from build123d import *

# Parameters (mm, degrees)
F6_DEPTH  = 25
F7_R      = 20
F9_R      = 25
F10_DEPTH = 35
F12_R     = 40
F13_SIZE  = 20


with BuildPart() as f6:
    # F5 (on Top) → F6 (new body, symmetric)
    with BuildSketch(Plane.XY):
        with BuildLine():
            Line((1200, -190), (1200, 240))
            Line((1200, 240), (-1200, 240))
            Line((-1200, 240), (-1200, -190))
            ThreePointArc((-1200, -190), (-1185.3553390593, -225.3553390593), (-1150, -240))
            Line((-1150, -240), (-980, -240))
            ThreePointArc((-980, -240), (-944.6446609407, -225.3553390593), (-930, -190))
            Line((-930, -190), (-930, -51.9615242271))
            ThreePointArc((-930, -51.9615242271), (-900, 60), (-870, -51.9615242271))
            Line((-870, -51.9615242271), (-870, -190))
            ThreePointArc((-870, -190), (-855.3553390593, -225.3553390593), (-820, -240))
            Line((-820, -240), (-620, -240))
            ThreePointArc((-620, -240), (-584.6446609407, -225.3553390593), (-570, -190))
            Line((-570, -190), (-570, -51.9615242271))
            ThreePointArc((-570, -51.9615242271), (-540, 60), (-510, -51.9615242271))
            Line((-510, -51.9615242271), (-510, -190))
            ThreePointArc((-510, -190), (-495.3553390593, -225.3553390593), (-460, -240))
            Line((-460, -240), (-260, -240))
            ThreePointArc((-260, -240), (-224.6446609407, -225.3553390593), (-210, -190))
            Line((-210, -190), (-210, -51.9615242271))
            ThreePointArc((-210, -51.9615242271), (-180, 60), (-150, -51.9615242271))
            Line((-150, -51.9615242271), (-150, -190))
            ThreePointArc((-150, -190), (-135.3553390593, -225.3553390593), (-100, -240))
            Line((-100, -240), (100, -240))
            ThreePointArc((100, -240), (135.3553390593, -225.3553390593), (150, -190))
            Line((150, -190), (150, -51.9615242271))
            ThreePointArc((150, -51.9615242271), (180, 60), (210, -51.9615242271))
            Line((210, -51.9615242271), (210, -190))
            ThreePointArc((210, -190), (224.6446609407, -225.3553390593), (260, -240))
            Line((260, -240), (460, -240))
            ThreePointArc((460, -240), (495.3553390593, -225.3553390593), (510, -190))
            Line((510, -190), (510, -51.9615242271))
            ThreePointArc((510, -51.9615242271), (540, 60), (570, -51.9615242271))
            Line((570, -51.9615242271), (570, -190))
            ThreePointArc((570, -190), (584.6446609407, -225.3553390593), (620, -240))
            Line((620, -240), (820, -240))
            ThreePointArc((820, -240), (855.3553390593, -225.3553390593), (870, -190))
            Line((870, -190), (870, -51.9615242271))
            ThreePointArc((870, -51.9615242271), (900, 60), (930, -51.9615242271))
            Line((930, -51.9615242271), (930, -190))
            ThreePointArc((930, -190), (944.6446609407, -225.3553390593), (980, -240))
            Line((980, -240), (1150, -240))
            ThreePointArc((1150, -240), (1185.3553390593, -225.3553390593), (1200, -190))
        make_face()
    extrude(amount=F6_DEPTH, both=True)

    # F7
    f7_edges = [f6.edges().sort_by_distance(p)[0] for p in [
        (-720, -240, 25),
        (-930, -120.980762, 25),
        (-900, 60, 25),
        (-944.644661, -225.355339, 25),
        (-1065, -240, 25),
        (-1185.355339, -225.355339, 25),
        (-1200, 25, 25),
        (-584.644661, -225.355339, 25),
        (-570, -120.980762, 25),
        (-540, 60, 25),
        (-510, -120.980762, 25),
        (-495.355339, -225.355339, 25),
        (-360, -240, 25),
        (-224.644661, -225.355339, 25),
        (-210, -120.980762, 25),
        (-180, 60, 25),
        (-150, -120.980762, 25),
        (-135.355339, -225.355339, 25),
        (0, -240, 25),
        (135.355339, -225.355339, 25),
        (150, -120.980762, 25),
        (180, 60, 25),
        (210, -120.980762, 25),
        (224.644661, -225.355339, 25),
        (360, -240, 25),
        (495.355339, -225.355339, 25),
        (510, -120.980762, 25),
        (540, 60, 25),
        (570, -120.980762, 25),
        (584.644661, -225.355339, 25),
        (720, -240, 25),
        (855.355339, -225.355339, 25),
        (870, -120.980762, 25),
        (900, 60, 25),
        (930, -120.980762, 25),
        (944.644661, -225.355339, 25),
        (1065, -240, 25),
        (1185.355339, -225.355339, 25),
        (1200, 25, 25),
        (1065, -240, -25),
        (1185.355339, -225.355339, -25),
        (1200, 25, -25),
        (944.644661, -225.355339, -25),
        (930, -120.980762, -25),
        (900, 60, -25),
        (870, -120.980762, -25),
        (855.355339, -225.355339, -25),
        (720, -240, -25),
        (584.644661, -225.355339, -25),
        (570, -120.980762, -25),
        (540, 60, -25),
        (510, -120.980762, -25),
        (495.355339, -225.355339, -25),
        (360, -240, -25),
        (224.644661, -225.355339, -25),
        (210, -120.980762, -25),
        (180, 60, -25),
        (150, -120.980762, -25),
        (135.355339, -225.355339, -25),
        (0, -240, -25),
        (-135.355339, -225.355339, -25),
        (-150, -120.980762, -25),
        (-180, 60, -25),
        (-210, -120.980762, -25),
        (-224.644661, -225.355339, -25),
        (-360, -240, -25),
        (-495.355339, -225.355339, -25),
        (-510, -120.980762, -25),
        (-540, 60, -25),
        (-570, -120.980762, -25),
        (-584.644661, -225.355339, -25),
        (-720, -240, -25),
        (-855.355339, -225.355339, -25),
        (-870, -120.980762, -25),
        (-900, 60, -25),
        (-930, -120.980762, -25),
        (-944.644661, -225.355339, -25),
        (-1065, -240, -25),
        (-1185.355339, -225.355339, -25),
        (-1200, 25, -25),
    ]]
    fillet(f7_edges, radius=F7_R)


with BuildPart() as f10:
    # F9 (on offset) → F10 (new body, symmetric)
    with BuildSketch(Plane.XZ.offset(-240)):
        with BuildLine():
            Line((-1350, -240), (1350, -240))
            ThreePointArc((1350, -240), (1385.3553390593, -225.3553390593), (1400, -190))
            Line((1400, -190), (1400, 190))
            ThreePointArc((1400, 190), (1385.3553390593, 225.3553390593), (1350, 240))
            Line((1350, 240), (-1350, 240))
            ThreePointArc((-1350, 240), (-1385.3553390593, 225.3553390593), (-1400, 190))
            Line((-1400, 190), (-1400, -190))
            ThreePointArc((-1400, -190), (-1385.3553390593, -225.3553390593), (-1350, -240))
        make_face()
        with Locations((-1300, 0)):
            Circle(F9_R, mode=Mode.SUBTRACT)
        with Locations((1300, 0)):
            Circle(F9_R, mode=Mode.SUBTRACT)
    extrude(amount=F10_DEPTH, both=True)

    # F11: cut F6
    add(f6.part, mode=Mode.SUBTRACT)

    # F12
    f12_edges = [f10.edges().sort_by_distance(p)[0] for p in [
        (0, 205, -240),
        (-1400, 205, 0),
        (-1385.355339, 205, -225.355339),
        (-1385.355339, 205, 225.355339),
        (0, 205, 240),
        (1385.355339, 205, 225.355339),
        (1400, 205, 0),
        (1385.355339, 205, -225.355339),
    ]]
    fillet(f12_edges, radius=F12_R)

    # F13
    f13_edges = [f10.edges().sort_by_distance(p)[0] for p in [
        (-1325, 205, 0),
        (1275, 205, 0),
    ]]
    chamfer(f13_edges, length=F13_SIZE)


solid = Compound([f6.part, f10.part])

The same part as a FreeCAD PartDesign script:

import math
import FreeCAD as App
import Part
import Sketcher

V = App.Vector


def edges_at(feature, points):
    """Names of the edges that pass closest to the given points."""
    edges = feature.Shape.Edges
    near = lambda p: min(range(len(edges)), key=lambda i: edges[i].distToShape(Part.Vertex(*p))[0])
    return sorted({f"Edge{near(p) + 1}" for p in points})

doc = App.newDocument("Part")
body = doc.addObject("PartDesign::Body", "Body")

# Sketch on XY plane
sketch1 = body.newObject("Sketcher::SketchObject", "Sketch")
sketch1.AttachmentSupport = (doc.getObject("XY_Plane"), [""])
sketch1.MapMode = "FlatFace"
sketch1.addGeometry([
    Part.LineSegment(V(1200, -190, 0), V(1200, 240, 0)),  # 0
    Part.LineSegment(V(1200, 240, 0), V(-1200, 240, 0)),  # 1
    Part.LineSegment(V(-1200, 240, 0), V(-1200, -190, 0)),  # 2
    Part.ArcOfCircle(Part.Circle(V(-1150, -190, 0), V(0, 0, 1), 50), math.radians(180), math.radians(270)),  # 3
    Part.LineSegment(V(-1150, -240, 0), V(-980, -240, 0)),  # 4
    Part.ArcOfCircle(Part.Circle(V(-980, -190, 0), V(0, 0, 1), 50), math.radians(-90), math.radians(0)),  # 5
    Part.LineSegment(V(-930, -190, 0), V(-930, -52, 0)),  # 6
    Part.ArcOfCircle(Part.Circle(V(-900, 0, 0), V(0, 0, 1), 60), math.radians(-60), math.radians(240)),  # 7
    Part.LineSegment(V(-870, -52, 0), V(-870, -190, 0)),  # 8
    Part.ArcOfCircle(Part.Circle(V(-820, -190, 0), V(0, 0, 1), 50), math.radians(180), math.radians(270)),  # 9
    Part.LineSegment(V(-820, -240, 0), V(-620, -240, 0)),  # 10
    Part.ArcOfCircle(Part.Circle(V(-620, -190, 0), V(0, 0, 1), 50), math.radians(-90), math.radians(0)),  # 11
    Part.LineSegment(V(-570, -190, 0), V(-570, -52, 0)),  # 12
    Part.ArcOfCircle(Part.Circle(V(-540, 0, 0), V(0, 0, 1), 60), math.radians(-60), math.radians(240)),  # 13
    Part.LineSegment(V(-510, -52, 0), V(-510, -190, 0)),  # 14
    Part.ArcOfCircle(Part.Circle(V(-460, -190, 0), V(0, 0, 1), 50), math.radians(180), math.radians(270)),  # 15
    Part.LineSegment(V(-460, -240, 0), V(-260, -240, 0)),  # 16
    Part.ArcOfCircle(Part.Circle(V(-260, -190, 0), V(0, 0, 1), 50), math.radians(-90), math.radians(0)),  # 17
    Part.LineSegment(V(-210, -190, 0), V(-210, -52, 0)),  # 18
    Part.ArcOfCircle(Part.Circle(V(-180, 0, 0), V(0, 0, 1), 60), math.radians(-60), math.radians(240)),  # 19
    Part.LineSegment(V(-150, -52, 0), V(-150, -190, 0)),  # 20
    Part.ArcOfCircle(Part.Circle(V(-100, -190, 0), V(0, 0, 1), 50), math.radians(180), math.radians(270)),  # 21
    Part.LineSegment(V(-100, -240, 0), V(100, -240, 0)),  # 22
    Part.ArcOfCircle(Part.Circle(V(100, -190, 0), V(0, 0, 1), 50), math.radians(-90), math.radians(0)),  # 23
    Part.LineSegment(V(150, -190, 0), V(150, -52, 0)),  # 24
    Part.ArcOfCircle(Part.Circle(V(180, 0, 0), V(0, 0, 1), 60), math.radians(-60), math.radians(240)),  # 25
    Part.LineSegment(V(210, -52, 0), V(210, -190, 0)),  # 26
    Part.ArcOfCircle(Part.Circle(V(260, -190, 0), V(0, 0, 1), 50), math.radians(180), math.radians(270)),  # 27
    Part.LineSegment(V(260, -240, 0), V(460, -240, 0)),  # 28
    Part.ArcOfCircle(Part.Circle(V(460, -190, 0), V(0, 0, 1), 50), math.radians(-90), math.radians(0)),  # 29
    Part.LineSegment(V(510, -190, 0), V(510, -52, 0)),  # 30
    Part.ArcOfCircle(Part.Circle(V(540, 0, 0), V(0, 0, 1), 60), math.radians(-60), math.radians(240)),  # 31
    Part.LineSegment(V(570, -52, 0), V(570, -190, 0)),  # 32
    Part.ArcOfCircle(Part.Circle(V(620, -190, 0), V(0, 0, 1), 50), math.radians(180), math.radians(270)),  # 33
    Part.LineSegment(V(620, -240, 0), V(820, -240, 0)),  # 34
    Part.ArcOfCircle(Part.Circle(V(820, -190, 0), V(0, 0, 1), 50), math.radians(-90), math.radians(0)),  # 35
    Part.LineSegment(V(870, -190, 0), V(870, -52, 0)),  # 36
    Part.ArcOfCircle(Part.Circle(V(900, 0, 0), V(0, 0, 1), 60), math.radians(-60), math.radians(240)),  # 37
    Part.LineSegment(V(930, -52, 0), V(930, -190, 0)),  # 38
    Part.ArcOfCircle(Part.Circle(V(980, -190, 0), V(0, 0, 1), 50), math.radians(180), math.radians(270)),  # 39
    Part.LineSegment(V(980, -240, 0), V(1150, -240, 0)),  # 40
    Part.ArcOfCircle(Part.Circle(V(1150, -190, 0), V(0, 0, 1), 50), math.radians(-90), math.radians(0)),  # 41
], False)
sketch1.addConstraint([
    Sketcher.Constraint("Coincident", 0, 2, 1, 1),
    Sketcher.Constraint("Coincident", 1, 2, 2, 1),
    Sketcher.Constraint("Tangent", 2, 2, 3, 1),
    Sketcher.Constraint("Tangent", 3, 2, 4, 1),
    Sketcher.Constraint("Tangent", 4, 2, 5, 1),
    Sketcher.Constraint("Tangent", 5, 2, 6, 1),
    Sketcher.Constraint("Coincident", 6, 2, 7, 2),
    Sketcher.Constraint("Coincident", 7, 1, 8, 1),
    Sketcher.Constraint("Tangent", 8, 2, 9, 1),
    Sketcher.Constraint("Tangent", 9, 2, 10, 1),
    Sketcher.Constraint("Tangent", 10, 2, 11, 1),
    Sketcher.Constraint("Tangent", 11, 2, 12, 1),
    Sketcher.Constraint("Coincident", 12, 2, 13, 2),
    Sketcher.Constraint("Coincident", 13, 1, 14, 1),
    Sketcher.Constraint("Tangent", 14, 2, 15, 1),
    Sketcher.Constraint("Tangent", 15, 2, 16, 1),
    Sketcher.Constraint("Tangent", 16, 2, 17, 1),
    Sketcher.Constraint("Tangent", 17, 2, 18, 1),
    Sketcher.Constraint("Coincident", 18, 2, 19, 2),
    Sketcher.Constraint("Coincident", 19, 1, 20, 1),
    Sketcher.Constraint("Tangent", 20, 2, 21, 1),
    Sketcher.Constraint("Tangent", 21, 2, 22, 1),
    Sketcher.Constraint("Tangent", 22, 2, 23, 1),
    Sketcher.Constraint("Tangent", 23, 2, 24, 1),
    Sketcher.Constraint("Coincident", 24, 2, 25, 2),
    Sketcher.Constraint("Coincident", 25, 1, 26, 1),
    Sketcher.Constraint("Tangent", 26, 2, 27, 1),
    Sketcher.Constraint("Tangent", 27, 2, 28, 1),
    Sketcher.Constraint("Tangent", 28, 2, 29, 1),
    Sketcher.Constraint("Tangent", 29, 2, 30, 1),
    Sketcher.Constraint("Coincident", 30, 2, 31, 2),
    Sketcher.Constraint("Coincident", 31, 1, 32, 1),
    Sketcher.Constraint("Tangent", 32, 2, 33, 1),
    Sketcher.Constraint("Tangent", 33, 2, 34, 1),
    Sketcher.Constraint("Tangent", 34, 2, 35, 1),
    Sketcher.Constraint("Tangent", 35, 2, 36, 1),
    Sketcher.Constraint("Coincident", 36, 2, 37, 2),
    Sketcher.Constraint("Coincident", 37, 1, 38, 1),
    Sketcher.Constraint("Tangent", 38, 2, 39, 1),
    Sketcher.Constraint("Tangent", 39, 2, 40, 1),
    Sketcher.Constraint("Tangent", 40, 2, 41, 1),
    Sketcher.Constraint("Tangent", 41, 2, 0, 1),
    Sketcher.Constraint("Vertical", 0),
    Sketcher.Constraint("Horizontal", 1),
    Sketcher.Constraint("Vertical", 2),
    Sketcher.Constraint("Horizontal", 4),
    Sketcher.Constraint("Vertical", 6),
    Sketcher.Constraint("Vertical", 8),
    Sketcher.Constraint("Horizontal", 10),
    Sketcher.Constraint("Vertical", 12),
    Sketcher.Constraint("Vertical", 14),
    Sketcher.Constraint("Horizontal", 16),
    Sketcher.Constraint("Vertical", 18),
    Sketcher.Constraint("Vertical", 20),
    Sketcher.Constraint("Horizontal", 22),
    Sketcher.Constraint("Vertical", 24),
    Sketcher.Constraint("Vertical", 26),
    Sketcher.Constraint("Horizontal", 28),
    Sketcher.Constraint("Vertical", 30),
    Sketcher.Constraint("Vertical", 32),
    Sketcher.Constraint("Horizontal", 34),
    Sketcher.Constraint("Vertical", 36),
    Sketcher.Constraint("Vertical", 38),
    Sketcher.Constraint("Horizontal", 40),
    Sketcher.Constraint("Equal", 3, 5),
    Sketcher.Constraint("Equal", 5, 9),
    Sketcher.Constraint("Equal", 9, 11),
    Sketcher.Constraint("Equal", 7, 13),
    Sketcher.Constraint("Equal", 11, 15),
    Sketcher.Constraint("Equal", 15, 17),
    Sketcher.Constraint("Equal", 13, 19),
    Sketcher.Constraint("Equal", 17, 21),
    Sketcher.Constraint("Equal", 21, 23),
    Sketcher.Constraint("Equal", 19, 25),
    Sketcher.Constraint("Equal", 23, 27),
    Sketcher.Constraint("Equal", 27, 29),
    Sketcher.Constraint("Equal", 25, 31),
    Sketcher.Constraint("Equal", 29, 33),
    Sketcher.Constraint("Equal", 33, 35),
    Sketcher.Constraint("Equal", 31, 37),
    Sketcher.Constraint("Equal", 35, 39),
    Sketcher.Constraint("Equal", 39, 41),
    Sketcher.Constraint("Symmetric", 19, 3, 25, 3, -1, 1),
    Sketcher.Constraint("Symmetric", 13, 3, 31, 3, -1, 1),
    Sketcher.Constraint("Symmetric", 7, 3, 37, 3, -1, 1),
    Sketcher.Constraint("Symmetric", 17, 3, 27, 3, -2),
    Sketcher.Constraint("Symmetric", 11, 3, 33, 3, -2),
    Sketcher.Constraint("Symmetric", 5, 3, 39, 3, -2),
    Sketcher.Constraint("Symmetric", 19, 1, 24, 2, -2),
    Sketcher.Constraint("Symmetric", 13, 1, 30, 2, -2),
    Sketcher.Constraint("Symmetric", 7, 1, 36, 2, -2),
    Sketcher.Constraint("Horizontal", 5, 3, 9, 3),
    Sketcher.Constraint("Horizontal", 11, 3, 15, 3),
    Sketcher.Constraint("Horizontal", 17, 3, 21, 3),
    Sketcher.Constraint("Horizontal", 6, 2, 7, 1),
    Sketcher.Constraint("Horizontal", 7, 1, 12, 2),
    Sketcher.Constraint("Horizontal", 12, 2, 13, 1),
    Sketcher.Constraint("Horizontal", 13, 1, 18, 2),
    Sketcher.Constraint("Horizontal", 18, 2, 19, 1),
    Sketcher.Constraint("Equal", 10, 16),
    Sketcher.Constraint("Equal", 16, 22),
    Sketcher.Constraint("Equal", 4, 40),
    Sketcher.Constraint("Radius", 3, 50.0),
    Sketcher.Constraint("Radius", 7, 60.0),
    Sketcher.Constraint("DistanceX", 1, 2, 1, 1, 2400.0),
    Sketcher.Constraint("DistanceX", 4, 1, 4, 2, 170.0),
    Sketcher.Constraint("DistanceX", 10, 1, 10, 2, 200.0),
    Sketcher.Constraint("DistanceY", 0, 1, 0, 2, 430.0),
    Sketcher.Constraint("DistanceY", 3, 3, -1, 1, 190.0),
])
pad1 = body.newObject("PartDesign::Pad", "Pad")
pad1.Profile = sketch1
pad1.Length = 50
pad1.Midplane = True
doc.recompute()

fillet = body.newObject("PartDesign::Fillet", "Fillet")
fillet.Base = (pad1, edges_at(pad1, [
    (-720, -240, 25),
    (-930, -120.981, 25),
    (-900, 60, 25),
    (-944.645, -225.355, 25),
    (-1065, -240, 25),
    (-1185.355, -225.355, 25),
    (-1200, 25, 25),
    (-584.645, -225.355, 25),
    (-570, -120.981, 25),
    (-540, 60, 25),
    (-510, -120.981, 25),
    (-495.355, -225.355, 25),
    (-360, -240, 25),
    (-224.645, -225.355, 25),
    (-210, -120.981, 25),
    (-180, 60, 25),
    (-150, -120.981, 25),
    (-135.355, -225.355, 25),
    (0, -240, 25),
    (135.355, -225.355, 25),
    (150, -120.981, 25),
    (180, 60, 25),
    (210, -120.981, 25),
    (224.645, -225.355, 25),
    (360, -240, 25),
    (495.355, -225.355, 25),
    (510, -120.981, 25),
    (540, 60, 25),
    (570, -120.981, 25),
    (584.645, -225.355, 25),
    (720, -240, 25),
    (855.355, -225.355, 25),
    (870, -120.981, 25),
    (900, 60, 25),
    (930, -120.981, 25),
    (944.645, -225.355, 25),
    (1065, -240, 25),
    (1185.355, -225.355, 25),
    (1200, 25, 25),
    (1065, -240, -25),
    (1185.355, -225.355, -25),
    (1200, 25, -25),
    (944.645, -225.355, -25),
    (930, -120.981, -25),
    (900, 60, -25),
    (870, -120.981, -25),
    (855.355, -225.355, -25),
    (720, -240, -25),
    (584.645, -225.355, -25),
    (570, -120.981, -25),
    (540, 60, -25),
    (510, -120.981, -25),
    (495.355, -225.355, -25),
    (360, -240, -25),
    (224.645, -225.355, -25),
    (210, -120.981, -25),
    (180, 60, -25),
    (150, -120.981, -25),
    (135.355, -225.355, -25),
    (0, -240, -25),
    (-135.355, -225.355, -25),
    (-150, -120.981, -25),
    (-180, 60, -25),
    (-210, -120.981, -25),
    (-224.645, -225.355, -25),
    (-360, -240, -25),
    (-495.355, -225.355, -25),
    (-510, -120.981, -25),
    (-540, 60, -25),
    (-570, -120.981, -25),
    (-584.645, -225.355, -25),
    (-720, -240, -25),
    (-855.355, -225.355, -25),
    (-870, -120.981, -25),
    (-900, 60, -25),
    (-930, -120.981, -25),
    (-944.645, -225.355, -25),
    (-1065, -240, -25),
    (-1185.355, -225.355, -25),
    (-1200, 25, -25),
]))
fillet.Radius = 20
body2 = doc.addObject("PartDesign::Body", "Body001")

# Sketch on XZ plane
sketch2 = body2.newObject("Sketcher::SketchObject", "Sketch001")
sketch2.AttachmentSupport = (doc.getObject("XZ_Plane001"), [""])
sketch2.MapMode = "FlatFace"
sketch2.AttachmentOffset = App.Placement(V(0, 0, -240), App.Rotation())
sketch2.addGeometry([
    Part.LineSegment(V(-1350, -240, 0), V(1350, -240, 0)),  # 0
    Part.ArcOfCircle(Part.Circle(V(1350, -190, 0), V(0, 0, 1), 50), math.radians(-90), math.radians(0)),  # 1
    Part.LineSegment(V(1400, -190, 0), V(1400, 190, 0)),  # 2
    Part.ArcOfCircle(Part.Circle(V(1350, 190, 0), V(0, 0, 1), 50), math.radians(0), math.radians(90)),  # 3
    Part.LineSegment(V(1350, 240, 0), V(-1350, 240, 0)),  # 4
    Part.ArcOfCircle(Part.Circle(V(-1350, 190, 0), V(0, 0, 1), 50), math.radians(90), math.radians(180)),  # 5
    Part.LineSegment(V(-1400, 190, 0), V(-1400, -190, 0)),  # 6
    Part.ArcOfCircle(Part.Circle(V(-1350, -190, 0), V(0, 0, 1), 50), math.radians(180), math.radians(270)),  # 7
    Part.Circle(V(-1300, 0, 0), V(0, 0, 1), 25),  # 8
    Part.Circle(V(1300, 0, 0), V(0, 0, 1), 25),  # 9
], False)
sketch2.addConstraint([
    Sketcher.Constraint("Tangent", 0, 2, 1, 1),
    Sketcher.Constraint("Tangent", 1, 2, 2, 1),
    Sketcher.Constraint("Tangent", 2, 2, 3, 1),
    Sketcher.Constraint("Tangent", 3, 2, 4, 1),
    Sketcher.Constraint("Tangent", 4, 2, 5, 1),
    Sketcher.Constraint("Tangent", 5, 2, 6, 1),
    Sketcher.Constraint("Tangent", 6, 2, 7, 1),
    Sketcher.Constraint("Tangent", 7, 2, 0, 1),
    Sketcher.Constraint("Horizontal", 0),
    Sketcher.Constraint("Vertical", 2),
    Sketcher.Constraint("Horizontal", 4),
    Sketcher.Constraint("Vertical", 6),
    Sketcher.Constraint("Equal", 1, 3),
    Sketcher.Constraint("Equal", 3, 5),
    Sketcher.Constraint("Equal", 5, 7),
    Sketcher.Constraint("Equal", 8, 9),
    Sketcher.Constraint("Symmetric", 1, 3, 5, 3, -1, 1),
    Sketcher.Constraint("Symmetric", 8, 3, 9, 3, -1, 1),
    Sketcher.Constraint("PointOnObject", 8, 3, -1),
    Sketcher.Constraint("Diameter", 8, 50.0),
    Sketcher.Constraint("Radius", 1, 50.0),
    Sketcher.Constraint("DistanceX", 0, 1, 0, 2, 2700.0),
    Sketcher.Constraint("DistanceY", 2, 1, 2, 2, 380.0),
    Sketcher.Constraint("DistanceX", 8, 3, -1, 1, 1300.0),
])
pad2 = body2.newObject("PartDesign::Pad", "Pad001")
pad2.Profile = sketch2
pad2.Length = 70
pad2.Midplane = True
doc.recompute()

body3 = doc.addObject("PartDesign::Body", "Body002")
body3.BaseFeature = body
boolean = body2.newObject("PartDesign::Boolean", "Boolean")
boolean.Type = "Cut"
boolean.addObjects([body3])
doc.recompute()

fillet2 = body2.newObject("PartDesign::Fillet", "Fillet001")
fillet2.Base = (boolean, edges_at(boolean, [
    (0, 205, -240),
    (-1400, 205, 0),
    (-1385.355, 205, -225.355),
    (-1385.355, 205, 225.355),
    (0, 205, 240),
    (1385.355, 205, 225.355),
    (1400, 205, 0),
    (1385.355, 205, -225.355),
]))
fillet2.Radius = 40
doc.recompute()

chamfer = body2.newObject("PartDesign::Chamfer", "Chamfer")
chamfer.Base = (fillet2, edges_at(fillet2, [(-1325, 205, 0), (1275, 205, 0)]))
chamfer.Size = 20

doc.recompute()
